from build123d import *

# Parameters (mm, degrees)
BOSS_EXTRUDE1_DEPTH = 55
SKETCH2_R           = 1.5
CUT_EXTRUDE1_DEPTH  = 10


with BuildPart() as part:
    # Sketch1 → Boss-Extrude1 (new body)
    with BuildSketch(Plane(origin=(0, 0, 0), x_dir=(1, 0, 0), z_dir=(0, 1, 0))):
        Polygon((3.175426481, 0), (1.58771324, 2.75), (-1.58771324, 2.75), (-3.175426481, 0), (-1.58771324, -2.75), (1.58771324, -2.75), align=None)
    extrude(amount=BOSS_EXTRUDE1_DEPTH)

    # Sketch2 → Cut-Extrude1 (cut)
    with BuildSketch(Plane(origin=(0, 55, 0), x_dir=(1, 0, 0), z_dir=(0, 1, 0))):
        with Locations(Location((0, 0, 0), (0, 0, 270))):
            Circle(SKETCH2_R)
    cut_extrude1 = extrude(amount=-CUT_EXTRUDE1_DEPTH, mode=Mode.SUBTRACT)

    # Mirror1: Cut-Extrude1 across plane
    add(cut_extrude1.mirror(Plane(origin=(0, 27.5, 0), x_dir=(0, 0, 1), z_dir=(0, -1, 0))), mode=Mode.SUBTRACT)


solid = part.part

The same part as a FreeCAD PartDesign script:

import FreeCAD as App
import Part
import Sketcher

V = App.Vector
Q = App.Units.Quantity


def add_polygon(sketch, points):
    """Adds a closed chain of lines whose ends are joined by coincident constraints."""
    first, n = sketch.GeometryCount, len(points)
    for a, b in zip(points, points[1:] + points[:1]):
        sketch.addGeometry(Part.LineSegment(App.Vector(*a, 0), App.Vector(*b, 0)), False)
    for i in range(n):
        sketch.addConstraint(Sketcher.Constraint("Coincident", first + i, 2, first + (i + 1) % n, 1))

doc = App.newDocument("Part")
params = doc.addObject("Spreadsheet::Sheet", "Params")
for row, (alias, value) in enumerate([
    ("pad1_length", "55 mm"),
    ("sketch2_diameter", "3 mm"),
    ("pocket1_length", "10 mm"),
], start=1):
    params.set(f"A{row}", alias)
    params.set(f"B{row}", "=" + value)
    params.setAlias(f"B{row}", alias)

body = doc.addObject("PartDesign::Body", "Body")

sketch1 = body.newObject("Sketcher::SketchObject", "Sketch")
sketch1.AttachmentSupport = (doc.getObject("XZ_Plane"), [""])
sketch1.MapMode = "FlatFace"
add_polygon(sketch1, [(3.2, 0), (1.6, -2.8), (-1.6, -2.8), (-3.2, 0), (-1.6, 2.8), (1.6, 2.8)])
sketch1.addConstraint(Sketcher.Constraint("Horizontal", 1))
sketch1.addConstraint(Sketcher.Constraint("Horizontal", 4))
sketch1.addConstraint(Sketcher.Constraint("Symmetric", 0, 2, 3, 2, -1, 1))
sketch1.addConstraint(Sketcher.Constraint("Symmetric", 2, 2, 5, 2, -1, 1))
sketch1.addConstraint(Sketcher.Constraint("PointOnObject", 2, 2, -1))
sketch1.addConstraint(Sketcher.Constraint("Parallel", 2, 5))
sketch1.addConstraint(Sketcher.Constraint("Vertical", 1, 2, 3, 2))
sketch1.addConstraint(Sketcher.Constraint("Angle", 0, Q("-120 deg")))
sketch1.addConstraint(Sketcher.Constraint("DistanceY", 1, 2, 3, 2, Q("5.5 mm")))
sketch1.addConstraint(Sketcher.Constraint("DistanceX", 1, 2, 1, 1, Q("3.175426 mm")))
pad1 = body.newObject("PartDesign::Pad", "Pad")
pad1.Profile = sketch1
pad1.setExpression("Length", "Params.pad1_length")
pad1.Reversed = True

sketch2 = body.newObject("Sketcher::SketchObject", "Sketch001")
sketch2.AttachmentSupport = (doc.getObject("XZ_Plane"), [""])
sketch2.MapMode = "FlatFace"
sketch2.AttachmentOffset = App.Placement(V(0, 0, -55), App.Rotation())
sketch2.addGeometry(Part.Circle(V(0, 0, 0), V(0, 0, 1), 1.5), False)
sketch2.addConstraint(Sketcher.Constraint("Coincident", 0, 3, -1, 1))
sketch2.addConstraint(Sketcher.Constraint("Diameter", 0, Q("3 mm")))
sketch2.setExpression("Constraints[1]", "Params.sketch2_diameter")
pocket1 = body.newObject("PartDesign::Pocket", "Pocket")
pocket1.Profile = sketch2
pocket1.setExpression("Length", "Params.pocket1_length")
pocket1.Reversed = True
doc.recompute()

datumplane = body.newObject("PartDesign::Plane", "DatumPlane")
datumplane.AttachmentSupport = (doc.getObject("XZ_Plane"), [""])
datumplane.MapMode = "FlatFace"
datumplane.AttachmentOffset = App.Placement(V(0, 0, -27.5), App.Rotation())
mirrored = body.newObject("PartDesign::Mirrored", "Mirrored")
mirrored.Originals = [pocket1]
mirrored.MirrorPlane = (datumplane, [""])
body.Tip = mirrored

doc.recompute()
